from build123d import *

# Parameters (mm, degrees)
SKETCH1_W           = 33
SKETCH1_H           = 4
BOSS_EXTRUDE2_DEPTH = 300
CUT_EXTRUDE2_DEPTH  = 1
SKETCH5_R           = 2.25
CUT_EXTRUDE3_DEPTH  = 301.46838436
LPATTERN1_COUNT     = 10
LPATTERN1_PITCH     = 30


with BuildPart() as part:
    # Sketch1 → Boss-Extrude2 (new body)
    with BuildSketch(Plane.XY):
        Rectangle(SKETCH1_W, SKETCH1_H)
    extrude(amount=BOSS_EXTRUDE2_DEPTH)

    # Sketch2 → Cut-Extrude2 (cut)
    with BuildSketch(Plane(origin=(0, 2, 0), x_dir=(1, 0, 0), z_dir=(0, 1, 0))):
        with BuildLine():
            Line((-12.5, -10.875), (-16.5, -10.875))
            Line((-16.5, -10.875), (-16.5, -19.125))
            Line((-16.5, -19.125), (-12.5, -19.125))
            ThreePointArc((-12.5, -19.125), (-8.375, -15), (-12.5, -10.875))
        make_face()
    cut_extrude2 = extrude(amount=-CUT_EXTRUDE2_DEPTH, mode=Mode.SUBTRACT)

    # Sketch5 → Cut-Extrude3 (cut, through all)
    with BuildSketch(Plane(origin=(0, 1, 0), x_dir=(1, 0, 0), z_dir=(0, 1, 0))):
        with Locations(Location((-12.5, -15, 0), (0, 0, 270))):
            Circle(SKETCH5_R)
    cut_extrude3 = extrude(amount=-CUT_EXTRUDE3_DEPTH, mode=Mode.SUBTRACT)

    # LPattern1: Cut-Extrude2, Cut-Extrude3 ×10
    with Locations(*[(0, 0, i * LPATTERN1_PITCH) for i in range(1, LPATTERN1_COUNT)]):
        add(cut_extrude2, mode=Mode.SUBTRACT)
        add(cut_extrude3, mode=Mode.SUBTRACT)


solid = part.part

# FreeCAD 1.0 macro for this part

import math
import FreeCAD as App
import Part
import Sketcher


def add_polygon(sketch, points):
    """Adds a closed chain of lines whose ends are joined by coincident constraints."""
    first, n = sketch.GeometryCount, len(points)
    for a, b in zip(points, points[1:] + points[:1]):
        sketch.addGeometry(Part.LineSegment(App.Vector(*a, 0), App.Vector(*b, 0)), False)
    for i in range(n):
        sketch.addConstraint(Sketcher.Constraint("Coincident", first + i, 2, first + (i + 1) % n, 1))

doc = App.newDocument("Part")
params = doc.addObject("Spreadsheet::Sheet", "Params")
for row, (alias, value) in enumerate([
    ("sketch1_width", "33 mm"),
    ("sketch1_height", "4 mm"),
    ("pad1_length", "300 mm"),
    ("sketch2_width", "4 mm"),
    ("pocket1_length", "1 mm"),
    ("sketch3_diameter", "4.5 mm"),
    ("linearpattern_pitch", "30 mm"),
], start=1):
    params.set(f"A{row}", alias)
    params.set(f"B{row}", "=" + value)
    params.setAlias(f"B{row}", alias)

body = doc.addObject("PartDesign::Body", "Body")

# Sketch on XY plane
sketch1 = body.newObject("Sketcher::SketchObject", "Sketch")
sketch1.AttachmentSupport = (doc.getObject("XY_Plane"), [""])
sketch1.MapMode = "FlatFace"
add_polygon(sketch1, [(-16.5, 2), (-16.5, -2), (16.5, -2), (16.5, 2)])  # lines 0-3
sketch1.addConstraint([
    Sketcher.Constraint("Vertical", 0),
    Sketcher.Constraint("Horizontal", 1),
    Sketcher.Constraint("Vertical", 2),
    Sketcher.Constraint("Horizontal", 3),
    Sketcher.Constraint("Symmetric", 0, 2, 2, 2, -1, 1),
    Sketcher.Constraint("DistanceX", 1, 1, 1, 2, 33.0),
    Sketcher.Constraint("DistanceY", 0, 2, 0, 1, 4.0),
])
sketch1.setExpression("Constraints[9]", "Params.sketch1_width")
sketch1.setExpression("Constraints[10]", "Params.sketch1_height")
pad1 = body.newObject("PartDesign::Pad", "Pad")
pad1.Profile = sketch1
pad1.setExpression("Length", "Params.pad1_length")

# Sketch on XZ plane
sketch2 = body.newObject("Sketcher::SketchObject", "Sketch001")
sketch2.AttachmentSupport = (doc.getObject("XZ_Plane"), [""])
sketch2.MapMode = "FlatFace"
sketch2.AttachmentOffset = App.Placement(App.Vector(0, 0, -2), App.Rotation())
sketch2.addGeometry([
    Part.LineSegment(App.Vector(-12.5, 10.9, 0), App.Vector(-16.5, 10.9, 0)),
    Part.LineSegment(App.Vector(-16.5, 10.9, 0), App.Vector(-16.5, 19.1, 0)),
    Part.LineSegment(App.Vector(-16.5, 19.1, 0), App.Vector(-12.5, 19.1, 0)),
    Part.ArcOfCircle(Part.Circle(App.Vector(-12.5, 15, 0), App.Vector(0, 0, 1), 4.1), math.radians(-90), math.radians(90)),
], False)
sketch2.addConstraint([
    Sketcher.Constraint("Coincident", 0, 2, 1, 1),
    Sketcher.Constraint("Coincident", 1, 2, 2, 1),
    Sketcher.Constraint("Tangent", 2, 2, 3, 2),
    Sketcher.Constraint("Tangent", 3, 1, 0, 1),
    Sketcher.Constraint("Horizontal", 0),
    Sketcher.Constraint("Vertical", 1),
    Sketcher.Constraint("Horizontal", 2),
    Sketcher.Constraint("DistanceX", 0, 2, 0, 1, 4.0),
    Sketcher.Constraint("DistanceY", -1, 1, 3, 3, 15.0),
    Sketcher.Constraint("Radius", 3, 4.125),
    Sketcher.Constraint("DistanceX", 3, 3, -1, 1, 12.5),
])
sketch2.setExpression("Constraints[7]", "Params.sketch2_width")
pocket1 = body.newObject("PartDesign::Pocket", "Pocket")
pocket1.Profile = sketch2
pocket1.setExpression("Length", "Params.pocket1_length")
pocket1.Reversed = True

# Sketch on XZ plane
sketch3 = body.newObject("Sketcher::SketchObject", "Sketch002")
sketch3.AttachmentSupport = (doc.getObject("XZ_Plane"), [""])
sketch3.MapMode = "FlatFace"
sketch3.AttachmentOffset = App.Placement(App.Vector(0, 0, -1), App.Rotation())
sketch3.addGeometry(Part.Circle(App.Vector(-12.5, 15, 0), App.Vector(0, 0, 1), 2.2), False)
sketch3.addConstraint([
    Sketcher.Constraint("Diameter", 0, 4.5),
    Sketcher.Constraint("DistanceY", -1, 1, 0, 3, 15.0),
    Sketcher.Constraint("DistanceX", 0, 3, -1, 1, 12.5),
])
sketch3.setExpression("Constraints[0]", "Params.sketch3_diameter")
pocket2 = body.newObject("PartDesign::Pocket", "Pocket001")
pocket2.Profile = sketch3
pocket2.Type = "ThroughAll"
pocket2.Reversed = True
doc.recompute()

linearpattern = body.newObject("PartDesign::LinearPattern", "LinearPattern")
linearpattern.Originals = [pocket1, pocket2]
linearpattern.Direction = (doc.getObject("Z_Axis"), [""])
linearpattern.Mode = "offset"
linearpattern.setExpression("Offset", "Params.linearpattern_pitch")
linearpattern.Occurrences = 10
body.Tip = linearpattern

doc.recompute()
